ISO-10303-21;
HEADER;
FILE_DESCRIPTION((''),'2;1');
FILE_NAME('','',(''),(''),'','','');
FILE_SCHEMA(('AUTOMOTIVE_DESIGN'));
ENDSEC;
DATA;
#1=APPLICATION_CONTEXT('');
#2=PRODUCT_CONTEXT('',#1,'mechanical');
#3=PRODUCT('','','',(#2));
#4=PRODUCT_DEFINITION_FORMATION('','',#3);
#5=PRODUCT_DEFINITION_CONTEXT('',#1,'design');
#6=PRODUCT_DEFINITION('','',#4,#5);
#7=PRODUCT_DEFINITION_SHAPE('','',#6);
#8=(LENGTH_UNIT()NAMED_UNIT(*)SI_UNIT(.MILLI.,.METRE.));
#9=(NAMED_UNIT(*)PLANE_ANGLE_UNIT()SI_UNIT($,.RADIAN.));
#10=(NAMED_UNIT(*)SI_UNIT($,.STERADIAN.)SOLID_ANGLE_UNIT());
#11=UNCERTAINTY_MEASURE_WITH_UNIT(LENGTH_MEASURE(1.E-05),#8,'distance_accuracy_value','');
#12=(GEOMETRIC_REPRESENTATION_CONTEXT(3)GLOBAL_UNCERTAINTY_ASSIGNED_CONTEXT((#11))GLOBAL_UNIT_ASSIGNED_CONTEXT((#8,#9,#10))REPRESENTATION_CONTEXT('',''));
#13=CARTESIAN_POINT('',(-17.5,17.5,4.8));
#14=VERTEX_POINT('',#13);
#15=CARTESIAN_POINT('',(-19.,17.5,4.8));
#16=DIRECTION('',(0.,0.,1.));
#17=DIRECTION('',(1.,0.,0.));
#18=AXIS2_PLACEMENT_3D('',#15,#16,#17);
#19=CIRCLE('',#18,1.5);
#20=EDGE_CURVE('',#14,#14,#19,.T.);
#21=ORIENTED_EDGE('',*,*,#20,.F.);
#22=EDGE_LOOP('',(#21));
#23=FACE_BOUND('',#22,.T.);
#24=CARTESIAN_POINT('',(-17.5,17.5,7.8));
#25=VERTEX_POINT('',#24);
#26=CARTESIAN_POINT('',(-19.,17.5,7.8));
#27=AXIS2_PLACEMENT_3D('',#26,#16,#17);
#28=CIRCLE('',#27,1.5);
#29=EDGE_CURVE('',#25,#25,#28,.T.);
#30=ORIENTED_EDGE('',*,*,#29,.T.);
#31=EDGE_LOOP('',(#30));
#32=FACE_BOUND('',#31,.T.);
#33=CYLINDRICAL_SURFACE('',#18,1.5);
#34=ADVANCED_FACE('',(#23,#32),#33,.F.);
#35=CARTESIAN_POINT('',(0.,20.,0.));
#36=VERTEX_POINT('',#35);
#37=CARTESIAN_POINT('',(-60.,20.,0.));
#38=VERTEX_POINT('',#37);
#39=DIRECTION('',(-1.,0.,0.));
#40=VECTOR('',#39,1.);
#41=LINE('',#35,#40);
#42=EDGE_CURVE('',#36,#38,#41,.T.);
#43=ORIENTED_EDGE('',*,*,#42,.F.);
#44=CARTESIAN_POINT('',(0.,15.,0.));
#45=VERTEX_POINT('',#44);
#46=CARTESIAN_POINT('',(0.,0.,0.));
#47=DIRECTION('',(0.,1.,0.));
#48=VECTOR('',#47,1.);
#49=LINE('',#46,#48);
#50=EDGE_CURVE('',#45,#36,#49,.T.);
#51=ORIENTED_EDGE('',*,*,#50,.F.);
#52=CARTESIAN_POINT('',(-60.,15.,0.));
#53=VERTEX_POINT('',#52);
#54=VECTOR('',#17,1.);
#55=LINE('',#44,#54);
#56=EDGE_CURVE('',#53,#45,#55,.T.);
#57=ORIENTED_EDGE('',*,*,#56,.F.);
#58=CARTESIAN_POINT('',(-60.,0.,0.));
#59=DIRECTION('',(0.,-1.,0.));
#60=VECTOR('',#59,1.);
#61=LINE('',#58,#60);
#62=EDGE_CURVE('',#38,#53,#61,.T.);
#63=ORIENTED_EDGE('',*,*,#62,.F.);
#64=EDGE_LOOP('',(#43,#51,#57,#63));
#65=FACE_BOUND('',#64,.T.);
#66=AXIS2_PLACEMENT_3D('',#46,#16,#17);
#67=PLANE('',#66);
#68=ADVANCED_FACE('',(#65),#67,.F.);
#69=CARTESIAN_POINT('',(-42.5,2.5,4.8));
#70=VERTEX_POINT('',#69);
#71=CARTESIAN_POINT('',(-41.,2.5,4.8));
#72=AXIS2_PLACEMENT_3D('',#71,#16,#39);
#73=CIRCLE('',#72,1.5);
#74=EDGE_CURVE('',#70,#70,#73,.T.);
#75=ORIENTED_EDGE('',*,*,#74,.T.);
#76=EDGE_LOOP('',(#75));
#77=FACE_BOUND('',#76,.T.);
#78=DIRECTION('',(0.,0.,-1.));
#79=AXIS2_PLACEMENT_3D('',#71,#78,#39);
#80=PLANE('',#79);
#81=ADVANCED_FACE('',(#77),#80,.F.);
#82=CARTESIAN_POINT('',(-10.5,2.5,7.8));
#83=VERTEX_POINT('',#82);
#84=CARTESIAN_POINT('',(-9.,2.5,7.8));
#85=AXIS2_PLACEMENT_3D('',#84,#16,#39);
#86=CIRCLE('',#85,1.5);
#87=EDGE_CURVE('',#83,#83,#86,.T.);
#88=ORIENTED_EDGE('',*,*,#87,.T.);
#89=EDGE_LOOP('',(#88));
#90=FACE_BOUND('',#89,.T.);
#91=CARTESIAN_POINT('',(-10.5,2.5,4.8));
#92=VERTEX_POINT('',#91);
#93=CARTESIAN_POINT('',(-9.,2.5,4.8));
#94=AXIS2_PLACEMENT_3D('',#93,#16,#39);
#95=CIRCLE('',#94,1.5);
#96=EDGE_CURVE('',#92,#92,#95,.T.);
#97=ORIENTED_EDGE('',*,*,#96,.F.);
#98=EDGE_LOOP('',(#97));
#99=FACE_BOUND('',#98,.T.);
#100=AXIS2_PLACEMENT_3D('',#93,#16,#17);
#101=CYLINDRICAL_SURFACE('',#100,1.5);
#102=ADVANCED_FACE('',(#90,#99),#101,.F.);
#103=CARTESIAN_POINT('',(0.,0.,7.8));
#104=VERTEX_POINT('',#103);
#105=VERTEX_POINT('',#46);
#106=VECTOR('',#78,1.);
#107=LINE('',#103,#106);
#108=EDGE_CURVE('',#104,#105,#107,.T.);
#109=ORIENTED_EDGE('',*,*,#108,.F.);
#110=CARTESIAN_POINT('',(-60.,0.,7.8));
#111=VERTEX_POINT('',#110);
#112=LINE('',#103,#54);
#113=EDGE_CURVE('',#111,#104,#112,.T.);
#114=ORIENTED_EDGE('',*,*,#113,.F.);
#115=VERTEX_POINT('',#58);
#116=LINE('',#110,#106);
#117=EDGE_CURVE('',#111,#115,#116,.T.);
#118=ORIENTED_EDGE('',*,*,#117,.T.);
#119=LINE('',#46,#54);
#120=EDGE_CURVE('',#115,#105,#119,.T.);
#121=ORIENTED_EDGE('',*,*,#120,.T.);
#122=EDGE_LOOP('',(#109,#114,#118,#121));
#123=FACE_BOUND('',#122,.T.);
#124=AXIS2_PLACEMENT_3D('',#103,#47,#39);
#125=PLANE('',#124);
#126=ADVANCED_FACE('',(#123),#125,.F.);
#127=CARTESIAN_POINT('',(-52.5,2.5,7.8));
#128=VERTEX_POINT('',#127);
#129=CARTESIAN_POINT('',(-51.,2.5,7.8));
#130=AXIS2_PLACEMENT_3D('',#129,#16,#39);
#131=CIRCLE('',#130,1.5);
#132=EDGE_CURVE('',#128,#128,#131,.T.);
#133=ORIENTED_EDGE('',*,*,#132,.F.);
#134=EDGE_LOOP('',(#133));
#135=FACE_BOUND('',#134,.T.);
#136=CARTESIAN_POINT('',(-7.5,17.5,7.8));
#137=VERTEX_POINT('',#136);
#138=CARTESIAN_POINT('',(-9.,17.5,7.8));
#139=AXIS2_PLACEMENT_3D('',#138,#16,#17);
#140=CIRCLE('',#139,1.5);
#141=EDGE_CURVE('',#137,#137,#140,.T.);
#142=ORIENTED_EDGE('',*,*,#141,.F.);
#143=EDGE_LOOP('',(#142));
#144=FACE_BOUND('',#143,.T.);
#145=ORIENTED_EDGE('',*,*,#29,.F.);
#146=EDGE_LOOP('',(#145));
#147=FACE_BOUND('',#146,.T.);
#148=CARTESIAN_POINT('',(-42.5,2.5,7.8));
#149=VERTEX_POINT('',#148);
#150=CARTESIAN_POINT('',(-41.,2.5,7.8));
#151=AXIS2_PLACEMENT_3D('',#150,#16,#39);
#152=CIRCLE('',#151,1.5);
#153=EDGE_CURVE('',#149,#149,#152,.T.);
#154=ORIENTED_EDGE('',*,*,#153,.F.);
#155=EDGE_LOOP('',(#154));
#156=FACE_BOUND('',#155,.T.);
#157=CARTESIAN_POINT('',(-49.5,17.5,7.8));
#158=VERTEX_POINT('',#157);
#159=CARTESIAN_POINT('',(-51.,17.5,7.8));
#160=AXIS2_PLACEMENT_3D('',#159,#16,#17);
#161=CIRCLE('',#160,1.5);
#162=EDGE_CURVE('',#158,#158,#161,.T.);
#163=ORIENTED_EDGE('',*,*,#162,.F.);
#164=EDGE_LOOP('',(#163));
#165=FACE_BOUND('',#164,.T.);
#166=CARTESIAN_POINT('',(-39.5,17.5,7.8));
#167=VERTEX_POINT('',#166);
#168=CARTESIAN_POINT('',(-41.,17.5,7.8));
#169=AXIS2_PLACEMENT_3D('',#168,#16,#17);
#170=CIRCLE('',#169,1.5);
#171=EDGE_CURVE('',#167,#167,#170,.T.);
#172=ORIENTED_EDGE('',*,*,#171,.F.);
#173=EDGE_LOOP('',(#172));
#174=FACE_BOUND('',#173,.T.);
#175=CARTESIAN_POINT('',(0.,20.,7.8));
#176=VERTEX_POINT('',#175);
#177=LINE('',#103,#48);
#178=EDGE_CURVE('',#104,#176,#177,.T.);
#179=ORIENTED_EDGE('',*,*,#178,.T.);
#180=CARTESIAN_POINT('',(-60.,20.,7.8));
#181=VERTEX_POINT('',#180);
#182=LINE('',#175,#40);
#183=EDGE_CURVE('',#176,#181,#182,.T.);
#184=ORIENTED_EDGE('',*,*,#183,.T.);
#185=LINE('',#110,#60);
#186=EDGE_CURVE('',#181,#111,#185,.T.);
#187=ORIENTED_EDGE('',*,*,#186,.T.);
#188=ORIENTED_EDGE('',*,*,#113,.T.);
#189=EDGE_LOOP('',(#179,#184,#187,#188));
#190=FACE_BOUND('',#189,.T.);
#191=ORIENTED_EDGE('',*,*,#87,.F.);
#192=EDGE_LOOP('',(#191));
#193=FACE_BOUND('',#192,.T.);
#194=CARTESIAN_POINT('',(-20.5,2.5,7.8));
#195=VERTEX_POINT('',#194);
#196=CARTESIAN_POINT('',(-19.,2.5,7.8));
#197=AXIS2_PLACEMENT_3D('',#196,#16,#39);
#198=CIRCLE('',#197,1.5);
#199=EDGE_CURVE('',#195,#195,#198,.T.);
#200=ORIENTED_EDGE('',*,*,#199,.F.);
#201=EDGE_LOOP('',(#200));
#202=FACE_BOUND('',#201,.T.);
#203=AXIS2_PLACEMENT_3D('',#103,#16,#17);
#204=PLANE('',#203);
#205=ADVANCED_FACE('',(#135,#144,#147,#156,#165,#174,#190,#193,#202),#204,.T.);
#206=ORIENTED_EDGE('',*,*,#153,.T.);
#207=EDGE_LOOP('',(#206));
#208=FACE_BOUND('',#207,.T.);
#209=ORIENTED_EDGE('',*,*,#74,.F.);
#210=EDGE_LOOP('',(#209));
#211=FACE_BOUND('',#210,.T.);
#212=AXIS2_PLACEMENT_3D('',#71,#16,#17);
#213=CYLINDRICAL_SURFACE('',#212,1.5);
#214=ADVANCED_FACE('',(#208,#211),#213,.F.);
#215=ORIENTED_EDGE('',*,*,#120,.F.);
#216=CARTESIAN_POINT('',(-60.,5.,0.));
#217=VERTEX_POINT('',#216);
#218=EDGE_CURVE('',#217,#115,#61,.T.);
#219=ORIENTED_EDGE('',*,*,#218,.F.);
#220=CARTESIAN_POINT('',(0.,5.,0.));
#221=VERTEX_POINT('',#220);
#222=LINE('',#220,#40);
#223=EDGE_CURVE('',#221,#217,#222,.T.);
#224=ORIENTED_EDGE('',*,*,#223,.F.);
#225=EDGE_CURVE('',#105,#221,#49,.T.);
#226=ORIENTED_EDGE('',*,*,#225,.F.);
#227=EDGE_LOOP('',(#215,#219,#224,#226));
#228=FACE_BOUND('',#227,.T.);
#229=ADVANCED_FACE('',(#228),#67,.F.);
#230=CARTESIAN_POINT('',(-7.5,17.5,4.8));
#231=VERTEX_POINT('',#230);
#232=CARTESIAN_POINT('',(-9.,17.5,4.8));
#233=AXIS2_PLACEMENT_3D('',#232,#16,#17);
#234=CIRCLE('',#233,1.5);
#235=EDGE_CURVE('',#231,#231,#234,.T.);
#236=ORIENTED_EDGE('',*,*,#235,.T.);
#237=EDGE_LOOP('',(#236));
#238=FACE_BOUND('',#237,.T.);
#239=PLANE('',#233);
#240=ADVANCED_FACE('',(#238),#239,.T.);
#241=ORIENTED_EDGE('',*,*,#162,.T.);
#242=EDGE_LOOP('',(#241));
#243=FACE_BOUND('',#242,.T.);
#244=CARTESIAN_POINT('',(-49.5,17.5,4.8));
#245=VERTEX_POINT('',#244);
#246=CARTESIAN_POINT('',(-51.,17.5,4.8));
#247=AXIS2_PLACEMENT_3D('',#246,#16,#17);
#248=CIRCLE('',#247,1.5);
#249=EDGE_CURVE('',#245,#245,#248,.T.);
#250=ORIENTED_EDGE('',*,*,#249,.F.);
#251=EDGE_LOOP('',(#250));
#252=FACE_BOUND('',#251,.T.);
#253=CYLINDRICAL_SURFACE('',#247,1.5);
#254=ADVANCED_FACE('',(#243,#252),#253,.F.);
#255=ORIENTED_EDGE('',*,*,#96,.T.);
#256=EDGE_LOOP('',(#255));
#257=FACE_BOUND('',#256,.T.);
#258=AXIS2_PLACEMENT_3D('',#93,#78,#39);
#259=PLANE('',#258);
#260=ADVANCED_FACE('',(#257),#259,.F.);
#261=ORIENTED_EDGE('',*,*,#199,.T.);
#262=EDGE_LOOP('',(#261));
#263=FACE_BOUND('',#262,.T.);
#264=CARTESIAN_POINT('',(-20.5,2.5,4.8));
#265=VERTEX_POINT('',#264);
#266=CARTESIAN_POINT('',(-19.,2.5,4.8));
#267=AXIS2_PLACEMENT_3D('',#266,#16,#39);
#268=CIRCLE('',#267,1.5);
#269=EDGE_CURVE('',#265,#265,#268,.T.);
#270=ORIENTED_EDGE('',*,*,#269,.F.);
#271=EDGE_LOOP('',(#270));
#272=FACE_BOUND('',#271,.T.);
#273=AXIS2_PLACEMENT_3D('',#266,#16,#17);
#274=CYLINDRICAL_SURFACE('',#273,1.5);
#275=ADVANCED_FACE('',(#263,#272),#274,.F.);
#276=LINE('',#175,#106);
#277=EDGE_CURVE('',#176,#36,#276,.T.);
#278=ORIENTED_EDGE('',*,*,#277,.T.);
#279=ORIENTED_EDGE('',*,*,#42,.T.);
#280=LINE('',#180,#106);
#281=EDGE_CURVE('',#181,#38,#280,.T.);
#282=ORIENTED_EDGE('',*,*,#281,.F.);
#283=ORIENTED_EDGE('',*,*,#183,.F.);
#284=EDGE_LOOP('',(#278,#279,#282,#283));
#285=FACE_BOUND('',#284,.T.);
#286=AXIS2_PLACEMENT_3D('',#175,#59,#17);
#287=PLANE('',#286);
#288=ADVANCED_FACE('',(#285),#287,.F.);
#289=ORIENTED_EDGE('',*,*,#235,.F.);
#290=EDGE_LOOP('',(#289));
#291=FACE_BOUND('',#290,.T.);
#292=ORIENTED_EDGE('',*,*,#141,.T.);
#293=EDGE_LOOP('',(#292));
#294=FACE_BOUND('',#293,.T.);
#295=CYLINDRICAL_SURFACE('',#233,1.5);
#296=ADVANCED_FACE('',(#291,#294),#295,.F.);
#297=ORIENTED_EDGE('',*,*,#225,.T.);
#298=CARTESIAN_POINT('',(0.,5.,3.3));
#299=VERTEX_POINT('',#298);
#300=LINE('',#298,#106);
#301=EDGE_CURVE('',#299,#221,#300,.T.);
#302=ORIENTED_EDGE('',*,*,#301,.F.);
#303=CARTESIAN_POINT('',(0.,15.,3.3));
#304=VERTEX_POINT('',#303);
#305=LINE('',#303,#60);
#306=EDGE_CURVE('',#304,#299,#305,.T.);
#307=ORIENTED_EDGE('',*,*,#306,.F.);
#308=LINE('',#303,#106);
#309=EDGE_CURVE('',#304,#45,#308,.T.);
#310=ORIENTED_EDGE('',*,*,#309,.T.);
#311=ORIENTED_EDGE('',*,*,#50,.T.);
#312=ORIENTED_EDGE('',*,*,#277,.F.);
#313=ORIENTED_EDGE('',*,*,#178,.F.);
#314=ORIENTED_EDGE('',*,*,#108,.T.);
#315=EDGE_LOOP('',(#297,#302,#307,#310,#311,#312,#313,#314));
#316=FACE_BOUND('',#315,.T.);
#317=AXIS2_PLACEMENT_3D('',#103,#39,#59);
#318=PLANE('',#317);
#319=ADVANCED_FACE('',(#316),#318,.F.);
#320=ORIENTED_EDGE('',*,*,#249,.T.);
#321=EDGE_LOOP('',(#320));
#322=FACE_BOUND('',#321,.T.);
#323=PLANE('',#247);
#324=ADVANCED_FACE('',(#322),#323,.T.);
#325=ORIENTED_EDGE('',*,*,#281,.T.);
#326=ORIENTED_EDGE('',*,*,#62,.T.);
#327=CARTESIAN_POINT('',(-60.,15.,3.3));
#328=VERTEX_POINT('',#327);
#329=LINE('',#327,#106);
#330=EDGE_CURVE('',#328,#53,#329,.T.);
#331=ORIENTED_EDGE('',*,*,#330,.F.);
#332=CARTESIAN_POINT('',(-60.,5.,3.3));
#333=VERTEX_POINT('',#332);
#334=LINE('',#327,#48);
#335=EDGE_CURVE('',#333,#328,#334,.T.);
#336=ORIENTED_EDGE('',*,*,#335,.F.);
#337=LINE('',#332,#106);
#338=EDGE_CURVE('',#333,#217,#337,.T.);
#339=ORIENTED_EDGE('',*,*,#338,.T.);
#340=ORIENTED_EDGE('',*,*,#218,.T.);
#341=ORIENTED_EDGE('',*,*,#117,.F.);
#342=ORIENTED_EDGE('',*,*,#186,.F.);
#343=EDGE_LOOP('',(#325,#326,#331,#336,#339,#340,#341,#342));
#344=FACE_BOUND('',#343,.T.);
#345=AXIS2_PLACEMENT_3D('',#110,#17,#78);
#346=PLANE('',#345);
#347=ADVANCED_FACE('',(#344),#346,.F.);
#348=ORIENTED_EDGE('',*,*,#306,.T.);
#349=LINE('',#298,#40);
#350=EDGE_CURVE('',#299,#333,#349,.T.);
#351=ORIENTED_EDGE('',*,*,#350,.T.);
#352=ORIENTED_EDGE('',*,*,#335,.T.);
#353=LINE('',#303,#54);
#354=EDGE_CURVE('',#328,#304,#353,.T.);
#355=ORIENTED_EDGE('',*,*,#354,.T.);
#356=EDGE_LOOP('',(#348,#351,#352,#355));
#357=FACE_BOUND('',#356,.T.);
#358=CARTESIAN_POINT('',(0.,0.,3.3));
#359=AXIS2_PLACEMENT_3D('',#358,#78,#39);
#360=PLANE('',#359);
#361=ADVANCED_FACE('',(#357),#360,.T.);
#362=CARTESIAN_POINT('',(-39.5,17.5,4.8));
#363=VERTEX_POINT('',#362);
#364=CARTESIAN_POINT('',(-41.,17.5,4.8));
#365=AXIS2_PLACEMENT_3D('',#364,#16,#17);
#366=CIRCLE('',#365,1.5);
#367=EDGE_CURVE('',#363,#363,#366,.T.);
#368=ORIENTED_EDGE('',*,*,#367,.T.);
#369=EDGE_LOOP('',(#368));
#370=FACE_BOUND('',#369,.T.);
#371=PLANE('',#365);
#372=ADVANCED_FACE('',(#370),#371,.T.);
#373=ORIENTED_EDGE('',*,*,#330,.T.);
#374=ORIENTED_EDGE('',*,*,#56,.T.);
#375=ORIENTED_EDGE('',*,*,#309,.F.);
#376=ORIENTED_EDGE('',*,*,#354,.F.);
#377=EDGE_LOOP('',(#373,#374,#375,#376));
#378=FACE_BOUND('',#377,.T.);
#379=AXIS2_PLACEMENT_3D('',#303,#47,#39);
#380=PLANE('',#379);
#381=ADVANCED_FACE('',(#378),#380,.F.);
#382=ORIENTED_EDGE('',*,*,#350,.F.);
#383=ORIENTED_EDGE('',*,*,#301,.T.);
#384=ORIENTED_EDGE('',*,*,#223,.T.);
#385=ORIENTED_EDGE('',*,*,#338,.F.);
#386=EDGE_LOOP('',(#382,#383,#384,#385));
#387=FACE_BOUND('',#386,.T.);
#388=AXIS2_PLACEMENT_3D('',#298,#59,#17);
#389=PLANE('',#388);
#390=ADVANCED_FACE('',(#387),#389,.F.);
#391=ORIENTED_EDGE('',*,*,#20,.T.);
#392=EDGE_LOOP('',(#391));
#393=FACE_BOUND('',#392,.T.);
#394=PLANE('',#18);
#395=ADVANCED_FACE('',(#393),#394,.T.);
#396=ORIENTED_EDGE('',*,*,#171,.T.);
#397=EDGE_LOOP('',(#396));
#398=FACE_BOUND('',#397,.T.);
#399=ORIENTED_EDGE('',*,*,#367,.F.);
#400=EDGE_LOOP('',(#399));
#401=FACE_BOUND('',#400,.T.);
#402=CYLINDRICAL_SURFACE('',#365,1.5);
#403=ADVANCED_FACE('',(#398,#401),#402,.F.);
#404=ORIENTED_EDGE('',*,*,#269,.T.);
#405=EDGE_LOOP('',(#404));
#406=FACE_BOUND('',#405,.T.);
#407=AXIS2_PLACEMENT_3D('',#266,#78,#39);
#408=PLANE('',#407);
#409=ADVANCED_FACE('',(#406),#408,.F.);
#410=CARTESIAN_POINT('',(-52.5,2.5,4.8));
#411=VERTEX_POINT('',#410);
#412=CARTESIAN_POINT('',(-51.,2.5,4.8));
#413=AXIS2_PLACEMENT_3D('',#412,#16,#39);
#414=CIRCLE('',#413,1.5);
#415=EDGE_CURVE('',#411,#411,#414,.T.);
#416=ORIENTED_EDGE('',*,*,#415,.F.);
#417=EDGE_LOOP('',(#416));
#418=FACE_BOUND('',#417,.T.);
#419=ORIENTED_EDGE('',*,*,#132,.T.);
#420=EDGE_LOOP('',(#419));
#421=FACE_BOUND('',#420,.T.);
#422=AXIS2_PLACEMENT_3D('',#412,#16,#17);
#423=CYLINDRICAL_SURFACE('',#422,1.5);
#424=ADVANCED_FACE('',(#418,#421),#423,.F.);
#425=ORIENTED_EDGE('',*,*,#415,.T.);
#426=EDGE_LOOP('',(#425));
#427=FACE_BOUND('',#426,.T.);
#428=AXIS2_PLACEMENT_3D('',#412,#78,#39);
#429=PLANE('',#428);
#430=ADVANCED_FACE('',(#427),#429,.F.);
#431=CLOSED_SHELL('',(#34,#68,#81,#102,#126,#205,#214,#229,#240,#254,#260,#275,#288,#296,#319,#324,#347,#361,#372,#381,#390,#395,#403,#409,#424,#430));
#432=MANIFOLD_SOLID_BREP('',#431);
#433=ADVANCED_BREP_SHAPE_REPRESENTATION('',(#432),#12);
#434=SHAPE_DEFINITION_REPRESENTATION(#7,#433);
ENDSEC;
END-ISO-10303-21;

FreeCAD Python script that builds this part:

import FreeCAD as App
import Part
import Sketcher

V = App.Vector
Q = App.Units.Quantity


def add_polygon(sketch, points):
    """Adds a closed chain of lines whose ends are joined by coincident constraints."""
    first, n = sketch.GeometryCount, len(points)
    for a, b in zip(points, points[1:] + points[:1]):
        sketch.addGeometry(Part.LineSegment(App.Vector(*a, 0), App.Vector(*b, 0)), False)
    for i in range(n):
        sketch.addConstraint(Sketcher.Constraint("Coincident", first + i, 2, first + (i + 1) % n, 1))

doc = App.newDocument("Part")
body = doc.addObject("PartDesign::Body", "Body")

# Sketch on XY plane
sketch1 = body.newObject("Sketcher::SketchObject", "Sketch")
sketch1.AttachmentSupport = (doc.getObject("XY_Plane"), [""])
sketch1.MapMode = "FlatFace"
add_polygon(sketch1, [(-60, 20), (-60, 0), (0, 0), (0, 20)])  # lines 0-3
sketch1.addConstraint(Sketcher.Constraint("Vertical", 0))
sketch1.addConstraint(Sketcher.Constraint("Horizontal", 1))
sketch1.addConstraint(Sketcher.Constraint("Vertical", 2))
sketch1.addConstraint(Sketcher.Constraint("Horizontal", 3))
sketch1.addConstraint(Sketcher.Constraint("Coincident", 1, 2, -1, 1))
sketch1.addConstraint(Sketcher.Constraint("DistanceX", 1, 1, 1, 2, Q("60 mm")))
sketch1.addConstraint(Sketcher.Constraint("DistanceY", 0, 2, 0, 1, Q("20 mm")))
pad1 = body.newObject("PartDesign::Pad", "Pad")
pad1.Profile = sketch1
pad1.Length = 7.8

# Sketch on XY plane
sketch2 = body.newObject("Sketcher::SketchObject", "Sketch001")
sketch2.AttachmentSupport = (doc.getObject("XY_Plane"), [""])
sketch2.MapMode = "FlatFace"
add_polygon(sketch2, [(0, 15), (0, 5), (-60, 5), (-60, 15)])  # lines 0-3
sketch2.addConstraint(Sketcher.Constraint("Vertical", 0))
sketch2.addConstraint(Sketcher.Constraint("Horizontal", 1))
sketch2.addConstraint(Sketcher.Constraint("Vertical", 2))
sketch2.addConstraint(Sketcher.Constraint("Horizontal", 3))
sketch2.addConstraint(Sketcher.Constraint("PointOnObject", 0, 2, -2))
sketch2.addConstraint(Sketcher.Constraint("DistanceX", 1, 2, 1, 1, Q("60 mm")))
sketch2.addConstraint(Sketcher.Constraint("DistanceY", 0, 2, 0, 1, Q("10 mm")))
sketch2.addConstraint(Sketcher.Constraint("DistanceY", -1, 1, 0, 2, Q("5 mm")))
pocket1 = body.newObject("PartDesign::Pocket", "Pocket")
pocket1.Profile = sketch2
pocket1.Length = 3.3
pocket1.Reversed = True

# Sketch on XY plane
sketch3 = body.newObject("Sketcher::SketchObject", "Sketch002")
sketch3.AttachmentSupport = (doc.getObject("XY_Plane"), [""])
sketch3.MapMode = "FlatFace"
sketch3.AttachmentOffset = App.Placement(V(0, 0, 7.8), App.Rotation())
sketch3.addGeometry(Part.Circle(V(-51, 17.5, 0), V(0, 0, 1), 1.5), False)
sketch3.addGeometry(Part.Circle(V(-41, 17.5, 0), V(0, 0, 1), 1.5), False)
sketch3.addGeometry(Part.Circle(V(-19, 17.5, 0), V(0, 0, 1), 1.5), False)
sketch3.addGeometry(Part.Circle(V(-9, 17.5, 0), V(0, 0, 1), 1.5), False)
sketch3.addGeometry(Part.Circle(V(-9, 2.5, 0), V(0, 0, 1), 1.5), False)
sketch3.addGeometry(Part.Circle(V(-19, 2.5, 0), V(0, 0, 1), 1.5), False)
sketch3.addGeometry(Part.Circle(V(-41, 2.5, 0), V(0, 0, 1), 1.5), False)
sketch3.addGeometry(Part.Circle(V(-51, 2.5, 0), V(0, 0, 1), 1.5), False)
sketch3.addConstraint(Sketcher.Constraint("Equal", 0, 1))
sketch3.addConstraint(Sketcher.Constraint("Equal", 1, 2))
sketch3.addConstraint(Sketcher.Constraint("Equal", 2, 3))
sketch3.addConstraint(Sketcher.Constraint("Equal", 3, 4))
sketch3.addConstraint(Sketcher.Constraint("Equal", 4, 5))
sketch3.addConstraint(Sketcher.Constraint("Equal", 5, 6))
sketch3.addConstraint(Sketcher.Constraint("Equal", 6, 7))
sketch3.addConstraint(Sketcher.Constraint("Horizontal", 0, 3, 1, 3))
sketch3.addConstraint(Sketcher.Constraint("Horizontal", 1, 3, 2, 3))
sketch3.addConstraint(Sketcher.Constraint("Horizontal", 2, 3, 3, 3))
sketch3.addConstraint(Sketcher.Constraint("Horizontal", 4, 3, 5, 3))
sketch3.addConstraint(Sketcher.Constraint("Horizontal", 5, 3, 6, 3))
sketch3.addConstraint(Sketcher.Constraint("Horizontal", 6, 3, 7, 3))
sketch3.addConstraint(Sketcher.Constraint("Vertical", 3, 3, 4, 3))
sketch3.addConstraint(Sketcher.Constraint("Vertical", 2, 3, 5, 3))
sketch3.addConstraint(Sketcher.Constraint("Vertical", 1, 3, 6, 3))
sketch3.addConstraint(Sketcher.Constraint("Vertical", 0, 3, 7, 3))
sketch3.addConstraint(Sketcher.Constraint("Diameter", 0, Q("3 mm")))
sketch3.addConstraint(Sketcher.Constraint("DistanceX", 0, 3, -1, 1, Q("51 mm")))
sketch3.addConstraint(Sketcher.Constraint("DistanceX", 1, 3, -1, 1, Q("41 mm")))
sketch3.addConstraint(Sketcher.Constraint("DistanceX", 2, 3, -1, 1, Q("19 mm")))
sketch3.addConstraint(Sketcher.Constraint("DistanceX", 3, 3, -1, 1, Q("9 mm")))
sketch3.addConstraint(Sketcher.Constraint("DistanceY", 4, 3, 3, 3, Q("15 mm")))
sketch3.addConstraint(Sketcher.Constraint("DistanceY", -1, 1, 0, 3, Q("17.5 mm")))
pocket2 = body.newObject("PartDesign::Pocket", "Pocket001")
pocket2.Profile = sketch3
pocket2.Length = 3

doc.recompute()
